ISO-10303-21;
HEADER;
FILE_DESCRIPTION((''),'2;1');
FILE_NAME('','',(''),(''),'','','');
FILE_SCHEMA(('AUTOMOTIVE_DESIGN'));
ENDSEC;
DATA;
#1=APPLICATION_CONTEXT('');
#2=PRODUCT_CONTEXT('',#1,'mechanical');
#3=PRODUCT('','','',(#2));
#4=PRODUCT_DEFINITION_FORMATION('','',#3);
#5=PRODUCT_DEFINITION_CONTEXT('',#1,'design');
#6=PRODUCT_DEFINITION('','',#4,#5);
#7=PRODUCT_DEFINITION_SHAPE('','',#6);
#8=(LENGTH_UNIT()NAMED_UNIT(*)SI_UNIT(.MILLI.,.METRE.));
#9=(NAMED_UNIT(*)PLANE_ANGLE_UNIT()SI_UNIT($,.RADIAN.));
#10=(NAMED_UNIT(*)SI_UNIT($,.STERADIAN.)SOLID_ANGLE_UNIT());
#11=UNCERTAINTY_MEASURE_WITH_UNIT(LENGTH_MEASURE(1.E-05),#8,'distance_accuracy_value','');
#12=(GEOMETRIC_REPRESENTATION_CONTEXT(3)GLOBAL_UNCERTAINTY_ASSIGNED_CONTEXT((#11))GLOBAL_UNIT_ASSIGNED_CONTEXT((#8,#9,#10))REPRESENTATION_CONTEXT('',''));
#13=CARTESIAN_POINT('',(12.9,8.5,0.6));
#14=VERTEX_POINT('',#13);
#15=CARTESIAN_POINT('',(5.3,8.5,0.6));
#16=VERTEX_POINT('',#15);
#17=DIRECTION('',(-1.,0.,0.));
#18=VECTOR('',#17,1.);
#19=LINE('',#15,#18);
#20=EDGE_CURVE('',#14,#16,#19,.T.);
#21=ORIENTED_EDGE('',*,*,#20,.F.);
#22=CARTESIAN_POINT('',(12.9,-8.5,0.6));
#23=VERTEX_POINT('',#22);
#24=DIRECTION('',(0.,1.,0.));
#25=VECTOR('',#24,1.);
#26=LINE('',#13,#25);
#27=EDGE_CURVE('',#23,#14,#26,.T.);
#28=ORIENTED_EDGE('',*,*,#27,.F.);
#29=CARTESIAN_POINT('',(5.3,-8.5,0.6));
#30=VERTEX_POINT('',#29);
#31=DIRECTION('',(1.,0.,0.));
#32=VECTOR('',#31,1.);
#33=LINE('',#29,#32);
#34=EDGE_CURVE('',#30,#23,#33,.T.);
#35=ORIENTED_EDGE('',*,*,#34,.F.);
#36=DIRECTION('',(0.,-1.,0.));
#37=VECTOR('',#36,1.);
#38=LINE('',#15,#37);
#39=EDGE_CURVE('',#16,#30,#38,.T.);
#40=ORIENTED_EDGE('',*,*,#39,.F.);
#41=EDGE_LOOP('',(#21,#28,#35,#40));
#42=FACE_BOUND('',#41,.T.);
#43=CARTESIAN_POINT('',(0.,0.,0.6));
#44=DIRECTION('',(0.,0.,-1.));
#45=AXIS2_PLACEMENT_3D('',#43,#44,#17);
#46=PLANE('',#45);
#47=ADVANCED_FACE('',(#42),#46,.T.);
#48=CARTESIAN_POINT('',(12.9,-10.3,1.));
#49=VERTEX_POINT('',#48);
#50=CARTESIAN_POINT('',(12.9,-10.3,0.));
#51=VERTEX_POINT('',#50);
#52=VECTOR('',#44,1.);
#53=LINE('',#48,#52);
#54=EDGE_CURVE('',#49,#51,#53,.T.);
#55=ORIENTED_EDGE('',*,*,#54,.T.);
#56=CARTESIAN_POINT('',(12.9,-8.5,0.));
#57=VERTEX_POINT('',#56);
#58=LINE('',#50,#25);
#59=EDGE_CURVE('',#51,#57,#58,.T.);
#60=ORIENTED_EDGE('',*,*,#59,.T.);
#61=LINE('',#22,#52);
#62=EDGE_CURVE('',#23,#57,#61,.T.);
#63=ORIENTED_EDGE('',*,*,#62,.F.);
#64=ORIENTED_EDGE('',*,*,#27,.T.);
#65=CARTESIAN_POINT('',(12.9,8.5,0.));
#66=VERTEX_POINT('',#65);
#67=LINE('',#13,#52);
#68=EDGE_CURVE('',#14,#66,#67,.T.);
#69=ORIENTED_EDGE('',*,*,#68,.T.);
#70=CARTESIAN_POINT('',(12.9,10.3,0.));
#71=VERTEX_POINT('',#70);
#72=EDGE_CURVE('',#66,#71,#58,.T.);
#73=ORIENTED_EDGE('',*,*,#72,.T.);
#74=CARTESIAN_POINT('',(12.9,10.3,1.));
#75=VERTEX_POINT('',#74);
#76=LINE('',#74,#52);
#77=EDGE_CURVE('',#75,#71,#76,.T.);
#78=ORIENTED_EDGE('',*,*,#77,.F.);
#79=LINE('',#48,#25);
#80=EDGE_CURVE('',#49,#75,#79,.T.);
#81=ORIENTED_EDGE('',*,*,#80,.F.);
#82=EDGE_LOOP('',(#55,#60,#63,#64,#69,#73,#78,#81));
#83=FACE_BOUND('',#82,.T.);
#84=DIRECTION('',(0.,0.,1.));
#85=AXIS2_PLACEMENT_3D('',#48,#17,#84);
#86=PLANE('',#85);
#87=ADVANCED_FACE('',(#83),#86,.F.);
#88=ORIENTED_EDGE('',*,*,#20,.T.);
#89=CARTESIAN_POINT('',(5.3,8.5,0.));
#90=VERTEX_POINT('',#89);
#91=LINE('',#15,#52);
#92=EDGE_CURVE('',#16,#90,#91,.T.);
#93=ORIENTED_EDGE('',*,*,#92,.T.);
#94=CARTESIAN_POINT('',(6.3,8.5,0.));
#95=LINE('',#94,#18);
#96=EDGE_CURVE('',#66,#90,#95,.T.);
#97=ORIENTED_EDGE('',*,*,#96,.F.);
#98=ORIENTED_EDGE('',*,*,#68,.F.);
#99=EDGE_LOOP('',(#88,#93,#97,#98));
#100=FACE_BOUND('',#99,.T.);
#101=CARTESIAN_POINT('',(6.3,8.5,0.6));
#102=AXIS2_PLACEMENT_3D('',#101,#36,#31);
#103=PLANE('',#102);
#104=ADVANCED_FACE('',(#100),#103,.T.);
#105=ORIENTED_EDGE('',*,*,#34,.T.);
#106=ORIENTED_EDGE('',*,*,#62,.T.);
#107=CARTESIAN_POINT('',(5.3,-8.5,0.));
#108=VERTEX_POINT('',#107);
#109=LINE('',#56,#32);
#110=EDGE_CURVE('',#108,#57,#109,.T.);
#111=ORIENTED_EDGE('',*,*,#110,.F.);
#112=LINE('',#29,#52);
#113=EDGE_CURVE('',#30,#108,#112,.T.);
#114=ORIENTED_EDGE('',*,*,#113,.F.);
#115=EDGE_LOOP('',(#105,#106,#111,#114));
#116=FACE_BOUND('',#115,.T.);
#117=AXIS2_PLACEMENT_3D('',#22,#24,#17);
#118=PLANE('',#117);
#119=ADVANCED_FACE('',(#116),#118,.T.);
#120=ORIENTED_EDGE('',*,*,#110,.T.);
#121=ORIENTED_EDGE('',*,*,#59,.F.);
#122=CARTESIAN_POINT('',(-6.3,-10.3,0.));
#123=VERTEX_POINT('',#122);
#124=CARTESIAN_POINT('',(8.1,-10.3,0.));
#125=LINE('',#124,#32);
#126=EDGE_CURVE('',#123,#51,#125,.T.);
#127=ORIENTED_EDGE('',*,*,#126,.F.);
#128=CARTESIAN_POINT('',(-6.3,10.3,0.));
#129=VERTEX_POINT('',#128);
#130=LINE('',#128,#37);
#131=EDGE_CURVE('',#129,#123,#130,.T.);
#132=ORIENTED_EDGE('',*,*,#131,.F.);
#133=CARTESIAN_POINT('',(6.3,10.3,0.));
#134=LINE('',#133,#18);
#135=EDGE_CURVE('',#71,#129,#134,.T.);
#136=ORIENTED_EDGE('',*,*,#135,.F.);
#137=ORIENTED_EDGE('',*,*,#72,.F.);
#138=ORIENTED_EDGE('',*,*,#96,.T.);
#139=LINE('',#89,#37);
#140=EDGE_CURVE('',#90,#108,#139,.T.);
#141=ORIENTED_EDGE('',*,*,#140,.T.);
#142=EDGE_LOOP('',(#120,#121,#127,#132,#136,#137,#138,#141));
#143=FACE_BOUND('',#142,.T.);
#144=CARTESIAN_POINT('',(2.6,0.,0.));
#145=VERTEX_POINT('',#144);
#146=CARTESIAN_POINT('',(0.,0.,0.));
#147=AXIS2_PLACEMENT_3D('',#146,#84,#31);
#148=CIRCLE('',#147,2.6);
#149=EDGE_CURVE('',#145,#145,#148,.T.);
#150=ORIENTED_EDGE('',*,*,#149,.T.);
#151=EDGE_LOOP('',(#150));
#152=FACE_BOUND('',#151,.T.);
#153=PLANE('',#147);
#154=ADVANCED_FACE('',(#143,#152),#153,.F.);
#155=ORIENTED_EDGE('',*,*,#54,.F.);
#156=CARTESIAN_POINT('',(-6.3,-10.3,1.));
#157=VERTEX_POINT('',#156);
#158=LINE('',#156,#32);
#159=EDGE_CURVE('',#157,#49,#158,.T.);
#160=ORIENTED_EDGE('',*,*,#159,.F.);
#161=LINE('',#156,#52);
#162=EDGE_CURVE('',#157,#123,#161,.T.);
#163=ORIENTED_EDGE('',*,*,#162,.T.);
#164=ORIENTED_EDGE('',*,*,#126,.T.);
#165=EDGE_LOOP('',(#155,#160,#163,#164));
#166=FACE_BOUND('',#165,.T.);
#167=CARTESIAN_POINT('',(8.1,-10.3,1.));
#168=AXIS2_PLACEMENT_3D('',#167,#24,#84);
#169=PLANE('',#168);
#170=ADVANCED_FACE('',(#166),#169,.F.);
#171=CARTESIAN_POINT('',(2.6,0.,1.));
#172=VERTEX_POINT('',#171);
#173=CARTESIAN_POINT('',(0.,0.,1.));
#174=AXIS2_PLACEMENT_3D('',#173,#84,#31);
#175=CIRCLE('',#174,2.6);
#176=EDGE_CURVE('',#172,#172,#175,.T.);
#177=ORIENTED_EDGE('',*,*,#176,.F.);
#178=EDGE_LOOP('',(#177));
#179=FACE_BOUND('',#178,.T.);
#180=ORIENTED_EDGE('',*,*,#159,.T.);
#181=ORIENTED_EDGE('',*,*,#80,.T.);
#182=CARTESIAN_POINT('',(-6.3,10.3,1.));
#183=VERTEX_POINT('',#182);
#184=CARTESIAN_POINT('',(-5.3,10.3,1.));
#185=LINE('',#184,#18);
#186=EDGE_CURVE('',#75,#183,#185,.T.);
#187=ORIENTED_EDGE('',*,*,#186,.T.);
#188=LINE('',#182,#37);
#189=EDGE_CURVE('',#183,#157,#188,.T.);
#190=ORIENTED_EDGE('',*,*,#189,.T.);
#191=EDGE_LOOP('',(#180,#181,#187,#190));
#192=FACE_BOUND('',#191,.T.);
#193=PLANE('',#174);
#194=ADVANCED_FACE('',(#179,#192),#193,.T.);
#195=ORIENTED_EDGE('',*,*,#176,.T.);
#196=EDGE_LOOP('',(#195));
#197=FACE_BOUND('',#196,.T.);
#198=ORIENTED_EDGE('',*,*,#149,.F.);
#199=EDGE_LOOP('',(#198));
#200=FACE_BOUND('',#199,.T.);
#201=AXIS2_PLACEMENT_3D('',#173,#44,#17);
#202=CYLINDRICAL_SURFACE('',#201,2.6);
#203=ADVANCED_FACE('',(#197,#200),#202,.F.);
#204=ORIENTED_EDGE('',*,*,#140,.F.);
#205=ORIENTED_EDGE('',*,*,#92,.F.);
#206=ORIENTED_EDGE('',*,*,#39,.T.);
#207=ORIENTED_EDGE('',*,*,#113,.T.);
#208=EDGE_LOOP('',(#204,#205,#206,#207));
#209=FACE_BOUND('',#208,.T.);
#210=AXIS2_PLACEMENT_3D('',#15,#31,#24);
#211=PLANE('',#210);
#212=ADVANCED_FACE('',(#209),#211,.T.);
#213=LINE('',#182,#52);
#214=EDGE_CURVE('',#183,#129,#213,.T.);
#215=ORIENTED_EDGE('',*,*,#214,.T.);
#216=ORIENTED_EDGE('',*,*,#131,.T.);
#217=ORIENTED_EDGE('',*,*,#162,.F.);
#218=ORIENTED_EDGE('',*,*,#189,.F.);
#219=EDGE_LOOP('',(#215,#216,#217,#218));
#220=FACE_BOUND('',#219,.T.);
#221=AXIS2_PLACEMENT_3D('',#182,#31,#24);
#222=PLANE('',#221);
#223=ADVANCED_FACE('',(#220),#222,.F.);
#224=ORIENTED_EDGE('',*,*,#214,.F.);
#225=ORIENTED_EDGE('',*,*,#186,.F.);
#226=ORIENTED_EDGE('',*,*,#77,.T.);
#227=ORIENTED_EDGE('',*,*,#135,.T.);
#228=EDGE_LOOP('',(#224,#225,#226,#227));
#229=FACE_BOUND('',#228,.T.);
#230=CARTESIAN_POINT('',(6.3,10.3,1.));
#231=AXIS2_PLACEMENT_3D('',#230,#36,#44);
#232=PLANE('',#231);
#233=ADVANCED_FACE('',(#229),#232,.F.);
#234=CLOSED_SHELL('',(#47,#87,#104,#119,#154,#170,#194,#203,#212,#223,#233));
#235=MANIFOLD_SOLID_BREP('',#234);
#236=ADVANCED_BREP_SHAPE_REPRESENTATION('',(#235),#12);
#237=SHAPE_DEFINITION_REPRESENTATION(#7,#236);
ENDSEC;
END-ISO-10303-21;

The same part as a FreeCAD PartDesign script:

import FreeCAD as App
import Part
import Sketcher
from FreeCAD import Vector


def add_polygon(sketch, points):
    """Adds a closed chain of lines whose ends are joined by coincident constraints."""
    first, n = sketch.GeometryCount, len(points)
    for a, b in zip(points, points[1:] + points[:1]):
        sketch.addGeometry(Part.LineSegment(App.Vector(*a, 0), App.Vector(*b, 0)), False)
    for i in range(n):
        sketch.addConstraint(Sketcher.Constraint("Coincident", first + i, 2, first + (i + 1) % n, 1))

doc = App.newDocument("Part")
body = doc.addObject("PartDesign::Body", "Body")

sketch1 = body.newObject("Sketcher::SketchObject", "Sketch")
sketch1.AttachmentSupport = (doc.getObject("XY_Plane"), [""])
sketch1.MapMode = "FlatFace"
add_polygon(sketch1, [(-6.3, 10.3), (-6.3, -10.3), (12.9, -10.3), (12.9, 10.3)])
sketch1.addGeometry(Part.Circle(Vector(0, 0, 0), Vector(0, 0, 1), 2.6), False)
sketch1.addConstraint([
    Sketcher.Constraint("Vertical", 0),
    Sketcher.Constraint("Horizontal", 1),
    Sketcher.Constraint("Vertical", 2),
    Sketcher.Constraint("Horizontal", 3),
    Sketcher.Constraint("Coincident", 4, 3, -1, 1),
    Sketcher.Constraint("Diameter", 4, 5.2),
    Sketcher.Constraint("DistanceX", 1, 1, 1, 2, 19.2),
    Sketcher.Constraint("DistanceY", 0, 2, 0, 1, 20.6),
    Sketcher.Constraint("DistanceX", 0, 2, -1, 1, 6.3),
    Sketcher.Constraint("DistanceY", 0, 2, -1, 1, 10.3),
])
pad1 = body.newObject("PartDesign::Pad", "Pad")
pad1.Profile = sketch1
pad1.Length = 1

sketch2 = body.newObject("Sketcher::SketchObject", "Sketch001")
sketch2.AttachmentSupport = (doc.getObject("XY_Plane"), [""])
sketch2.MapMode = "FlatFace"
add_polygon(sketch2, [(5.3, 8.5), (5.3, -8.5), (12.9, -8.5), (12.9, 8.5)])
sketch2.addConstraint([
    Sketcher.Constraint("Vertical", 0),
    Sketcher.Constraint("Horizontal", 1),
    Sketcher.Constraint("Vertical", 2),
    Sketcher.Constraint("Horizontal", 3),
    Sketcher.Constraint("DistanceY", 0, 2, 0, 1, 17.0),
    Sketcher.Constraint("DistanceX", 1, 1, 1, 2, 7.6),
    Sketcher.Constraint("DistanceX", -1, 1, 0, 2, 5.3),
    Sketcher.Constraint("DistanceY", 0, 2, -1, 1, 8.5),
])
pocket1 = body.newObject("PartDesign::Pocket", "Pocket")
pocket1.Profile = sketch2
pocket1.Length = 0.6
pocket1.Reversed = True

doc.recompute()
